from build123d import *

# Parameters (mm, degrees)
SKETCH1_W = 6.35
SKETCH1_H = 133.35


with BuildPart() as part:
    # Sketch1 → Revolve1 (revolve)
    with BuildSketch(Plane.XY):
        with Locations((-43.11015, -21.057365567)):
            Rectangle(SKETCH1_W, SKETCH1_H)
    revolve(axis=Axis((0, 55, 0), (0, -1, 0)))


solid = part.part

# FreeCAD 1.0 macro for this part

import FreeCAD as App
import Part
import Sketcher
from FreeCAD import Vector
Q = App.Units.Quantity

doc = App.newDocument("Part")
body = doc.addObject("PartDesign::Body", "Body")

# Sketch on XY plane
sketch1 = doc.addObject("Sketcher::SketchObject", "Sketch")
body.addObject(sketch1)
sketch1.AttachmentSupport = (doc.XY_Plane, [""])
sketch1.MapMode = "FlatFace"
sketch1.addGeometry(Part.LineSegment(Vector(-46, 46, 0), Vector(-46, -88, 0)), False)
sketch1.addGeometry(Part.LineSegment(Vector(-46, -88, 0), Vector(-40, -88, 0)), False)
sketch1.addGeometry(Part.LineSegment(Vector(-40, -88, 0), Vector(-40, 46, 0)), False)
sketch1.addGeometry(Part.LineSegment(Vector(-40, 46, 0), Vector(-46, 46, 0)), False)
sketch1.addConstraint(Sketcher.Constraint("Coincident", 0, 2, 1, 1))
sketch1.addConstraint(Sketcher.Constraint("Coincident", 1, 2, 2, 1))
sketch1.addConstraint(Sketcher.Constraint("Coincident", 2, 2, 3, 1))
sketch1.addConstraint(Sketcher.Constraint("Coincident", 3, 2, 0, 1))
sketch1.addConstraint(Sketcher.Constraint("Vertical", 0))
sketch1.addConstraint(Sketcher.Constraint("Horizontal", 1))
sketch1.addConstraint(Sketcher.Constraint("Vertical", 2))
sketch1.addConstraint(Sketcher.Constraint("Horizontal", 3))
sketch1.addConstraint(Sketcher.Constraint("DistanceX", 1, 1, 1, 2, Q("0.25 in")))
sketch1.addConstraint(Sketcher.Constraint("DistanceY", 0, 2, 0, 1, Q("5.25 in")))
sketch1.addConstraint(Sketcher.Constraint("DistanceX", 0, 2, -1, 1, 46.28515))
sketch1.addConstraint(Sketcher.Constraint("DistanceY", 0, 2, -1, 1, 87.732366))
revolution = doc.addObject("PartDesign::Revolution", "Revolution")
body.addObject(revolution)
revolution.Profile = sketch1
revolution.ReferenceAxis = (sketch1, ["V_Axis"])
revolution.Angle = 360

doc.recompute()
